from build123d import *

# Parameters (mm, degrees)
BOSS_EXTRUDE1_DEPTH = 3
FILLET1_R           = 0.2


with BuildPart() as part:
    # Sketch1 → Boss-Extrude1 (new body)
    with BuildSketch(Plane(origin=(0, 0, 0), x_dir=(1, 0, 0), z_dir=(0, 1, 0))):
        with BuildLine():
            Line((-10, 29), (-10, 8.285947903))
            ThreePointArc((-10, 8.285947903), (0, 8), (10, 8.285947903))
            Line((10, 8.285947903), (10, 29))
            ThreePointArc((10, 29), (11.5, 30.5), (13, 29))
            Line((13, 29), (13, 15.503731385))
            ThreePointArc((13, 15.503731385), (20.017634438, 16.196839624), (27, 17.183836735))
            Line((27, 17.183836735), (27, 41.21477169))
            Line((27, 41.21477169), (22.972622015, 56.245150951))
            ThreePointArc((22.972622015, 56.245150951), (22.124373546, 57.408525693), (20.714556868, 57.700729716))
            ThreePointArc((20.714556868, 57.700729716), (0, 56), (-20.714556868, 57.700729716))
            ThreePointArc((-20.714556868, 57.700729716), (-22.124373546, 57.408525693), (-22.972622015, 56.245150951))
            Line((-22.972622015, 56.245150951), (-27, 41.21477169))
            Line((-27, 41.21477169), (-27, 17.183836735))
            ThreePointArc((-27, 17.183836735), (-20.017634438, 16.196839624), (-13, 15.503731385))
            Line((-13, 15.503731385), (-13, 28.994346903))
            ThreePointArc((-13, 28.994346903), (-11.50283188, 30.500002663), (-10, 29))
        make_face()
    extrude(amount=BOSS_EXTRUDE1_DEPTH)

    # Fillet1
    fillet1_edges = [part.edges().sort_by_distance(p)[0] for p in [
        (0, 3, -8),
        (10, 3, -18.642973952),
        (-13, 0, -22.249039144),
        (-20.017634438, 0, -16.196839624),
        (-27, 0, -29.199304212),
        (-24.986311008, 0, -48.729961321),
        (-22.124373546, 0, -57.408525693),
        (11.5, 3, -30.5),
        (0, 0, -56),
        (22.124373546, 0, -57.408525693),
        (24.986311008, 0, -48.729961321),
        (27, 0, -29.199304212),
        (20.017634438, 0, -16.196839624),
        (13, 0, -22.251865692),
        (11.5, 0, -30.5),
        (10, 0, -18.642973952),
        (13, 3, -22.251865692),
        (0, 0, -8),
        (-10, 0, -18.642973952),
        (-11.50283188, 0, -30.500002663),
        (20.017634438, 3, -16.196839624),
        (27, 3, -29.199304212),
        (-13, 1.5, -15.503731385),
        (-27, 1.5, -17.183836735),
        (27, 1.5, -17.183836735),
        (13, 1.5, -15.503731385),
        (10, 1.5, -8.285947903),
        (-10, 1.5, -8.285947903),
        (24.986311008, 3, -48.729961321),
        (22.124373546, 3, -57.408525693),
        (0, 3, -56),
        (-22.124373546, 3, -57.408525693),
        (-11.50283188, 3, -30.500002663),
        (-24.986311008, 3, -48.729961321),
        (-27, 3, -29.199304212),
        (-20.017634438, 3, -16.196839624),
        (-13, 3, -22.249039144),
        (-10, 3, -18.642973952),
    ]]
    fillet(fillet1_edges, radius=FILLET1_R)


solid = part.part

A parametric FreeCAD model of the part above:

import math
import FreeCAD as App
import Part
import Sketcher

doc = App.newDocument("Part")
body = doc.addObject("PartDesign::Body", "Body")

sketch1 = doc.addObject("Sketcher::SketchObject", "Sketch")
body.addObject(sketch1)
sketch1.AttachmentSupport = (doc.XZ_Plane, [""])
sketch1.MapMode = "FlatFace"
sketch1.addGeometry([
    Part.LineSegment(App.Vector(-10, -29, 0), App.Vector(-10, -8.285948, 0)),
    Part.ArcOfCircle(Part.Circle(App.Vector(0, -183, 0), App.Vector(0, 0, 1), 175), math.radians(86.724171), math.radians(93.275829)),
    Part.LineSegment(App.Vector(10, -8.285948, 0), App.Vector(10, -29, 0)),
    Part.ArcOfCircle(Part.Circle(App.Vector(11.5, -29, 0), App.Vector(0, 0, 1), 1.5), math.radians(180), math.radians(360)),
    Part.LineSegment(App.Vector(13, -29, 0), App.Vector(13, -15.503731, 0)),
    Part.ArcOfCircle(Part.Circle(App.Vector(0, -183, 0), App.Vector(0, 0, 1), 168), math.radians(80.751642), math.radians(85.561961)),
    Part.LineSegment(App.Vector(27, -17.183837, 0), App.Vector(27, -41.214772, 0)),
    Part.LineSegment(App.Vector(27, -41.214772, 0), App.Vector(22.972622, -56.245151, 0)),
    Part.ArcOfCircle(Part.Circle(App.Vector(21.04077, -55.727513, 0), App.Vector(0, 0, 1), 2), math.radians(-99.387269), math.radians(-15)),
    Part.ArcOfCircle(Part.Circle(App.Vector(0, -183, 0), App.Vector(0, 0, 1), 127), math.radians(80.612731), math.radians(99.387269)),
    Part.ArcOfCircle(Part.Circle(App.Vector(-21.04077, -55.727513, 0), App.Vector(0, 0, 1), 2), math.radians(-165), math.radians(-80.612731)),
    Part.LineSegment(App.Vector(-22.972622, -56.245151, 0), App.Vector(-27, -41.214772, 0)),
    Part.LineSegment(App.Vector(-27, -41.214772, 0), App.Vector(-27, -17.183837, 0)),
    Part.ArcOfCircle(Part.Circle(App.Vector(0, -183, 0), App.Vector(0, 0, 1), 168), math.radians(94.438039), math.radians(99.248358)),
    Part.LineSegment(App.Vector(-13, -15.503731, 0), App.Vector(-13, -28.994347, 0)),
    Part.ArcOfCircle(Part.Circle(App.Vector(-11.500005, -29, 0), App.Vector(0, 0, 1), 1.500005), math.radians(179.784068), math.radians(360)),
], False)
sketch1.addConstraint([
    Sketcher.Constraint("Coincident", 0, 2, 1, 2),
    Sketcher.Constraint("Coincident", 1, 1, 2, 1),
    Sketcher.Constraint("Coincident", 2, 2, 3, 1),
    Sketcher.Constraint("Coincident", 3, 2, 4, 1),
    Sketcher.Constraint("Coincident", 4, 2, 5, 2),
    Sketcher.Constraint("Coincident", 5, 1, 6, 1),
    Sketcher.Constraint("Coincident", 6, 2, 7, 1),
    Sketcher.Constraint("Coincident", 7, 2, 8, 2),
    Sketcher.Constraint("Coincident", 8, 1, 9, 1),
    Sketcher.Constraint("Coincident", 9, 2, 10, 2),
    Sketcher.Constraint("Coincident", 10, 1, 11, 1),
    Sketcher.Constraint("Coincident", 11, 2, 12, 1),
    Sketcher.Constraint("Coincident", 12, 2, 13, 2),
    Sketcher.Constraint("Coincident", 13, 1, 14, 1),
    Sketcher.Constraint("Coincident", 14, 2, 15, 1),
    Sketcher.Constraint("Coincident", 15, 2, 0, 1),
    Sketcher.Constraint("Vertical", 0),
    Sketcher.Constraint("Vertical", 2),
    Sketcher.Constraint("Vertical", 4),
    Sketcher.Constraint("Vertical", 6),
    Sketcher.Constraint("Vertical", 12),
    Sketcher.Constraint("Vertical", 14),
    Sketcher.Constraint("Coincident", 5, 3, 1, 3),
    Sketcher.Constraint("Coincident", 9, 3, 1, 3),
    Sketcher.Constraint("Coincident", 13, 3, 1, 3),
    Sketcher.Constraint("PointOnObject", 1, 3, -2),
    Sketcher.Constraint("Radius", 1, 175.0),
    Sketcher.Constraint("Radius", 5, 168.0),
    Sketcher.Constraint("Radius", 8, 2.0),
    Sketcher.Constraint("Radius", 9, 127.0),
    Sketcher.Constraint("Radius", 10, 2.0),
    Sketcher.Constraint("Radius", 13, 168.0),
    Sketcher.Constraint("Radius", 3, 1.5),
    Sketcher.Constraint("DistanceY", 1, 3, -1, 1, 183.0),
    Sketcher.Constraint("DistanceY", 3, 3, -1, 1, 29.0),
    Sketcher.Constraint("DistanceY", 15, 3, -1, 1, 29.0),
    Sketcher.Constraint("DistanceX", 0, 2, -1, 1, 10.0),
    Sketcher.Constraint("DistanceX", -1, 1, 1, 1, 10.0),
    Sketcher.Constraint("DistanceY", 2, 2, -1, 1, 29.0),
    Sketcher.Constraint("DistanceY", 3, 2, -1, 1, 29.0),
    Sketcher.Constraint("DistanceX", -1, 1, 5, 1, 27.0),
    Sketcher.Constraint("DistanceX", 11, 2, -1, 1, 27.0),
    Sketcher.Constraint("DistanceX", 13, 1, -1, 1, 13.0),
    Sketcher.Constraint("DistanceY", 15, 2, -1, 1, 29.0),
    Sketcher.Constraint("DistanceY", 14, 2, 0, 2, 20.708399),
    Sketcher.Constraint("DistanceY", 6, 2, 6, 1, 24.030935),
    Sketcher.Constraint("DistanceY", 12, 1, 12, 2, 24.030935),
    Sketcher.Constraint("DistanceX", -1, 1, 8, 3, 21.04077),
    Sketcher.Constraint("DistanceX", 10, 3, -1, 1, 21.04077),
    Sketcher.Constraint("DistanceY", 7, 2, -1, 1, 56.245151),
    Sketcher.Constraint("DistanceY", 8, 1, -1, 1, 57.70073),
    Sketcher.Constraint("DistanceY", 9, 2, -1, 1, 57.70073),
    Sketcher.Constraint("DistanceY", 10, 1, -1, 1, 56.245151),
])
pad1 = doc.addObject("PartDesign::Pad", "Pad")
body.addObject(pad1)
pad1.Profile = sketch1
pad1.Length = 3
pad1.Reversed = True
doc.recompute()

fillet = doc.addObject("PartDesign::Fillet", "Fillet")
body.addObject(fillet)
fillet.Base = (pad1, ["Edge1"])
fillet.UseAllEdges = True
fillet.Radius = 0.2

doc.recompute()
